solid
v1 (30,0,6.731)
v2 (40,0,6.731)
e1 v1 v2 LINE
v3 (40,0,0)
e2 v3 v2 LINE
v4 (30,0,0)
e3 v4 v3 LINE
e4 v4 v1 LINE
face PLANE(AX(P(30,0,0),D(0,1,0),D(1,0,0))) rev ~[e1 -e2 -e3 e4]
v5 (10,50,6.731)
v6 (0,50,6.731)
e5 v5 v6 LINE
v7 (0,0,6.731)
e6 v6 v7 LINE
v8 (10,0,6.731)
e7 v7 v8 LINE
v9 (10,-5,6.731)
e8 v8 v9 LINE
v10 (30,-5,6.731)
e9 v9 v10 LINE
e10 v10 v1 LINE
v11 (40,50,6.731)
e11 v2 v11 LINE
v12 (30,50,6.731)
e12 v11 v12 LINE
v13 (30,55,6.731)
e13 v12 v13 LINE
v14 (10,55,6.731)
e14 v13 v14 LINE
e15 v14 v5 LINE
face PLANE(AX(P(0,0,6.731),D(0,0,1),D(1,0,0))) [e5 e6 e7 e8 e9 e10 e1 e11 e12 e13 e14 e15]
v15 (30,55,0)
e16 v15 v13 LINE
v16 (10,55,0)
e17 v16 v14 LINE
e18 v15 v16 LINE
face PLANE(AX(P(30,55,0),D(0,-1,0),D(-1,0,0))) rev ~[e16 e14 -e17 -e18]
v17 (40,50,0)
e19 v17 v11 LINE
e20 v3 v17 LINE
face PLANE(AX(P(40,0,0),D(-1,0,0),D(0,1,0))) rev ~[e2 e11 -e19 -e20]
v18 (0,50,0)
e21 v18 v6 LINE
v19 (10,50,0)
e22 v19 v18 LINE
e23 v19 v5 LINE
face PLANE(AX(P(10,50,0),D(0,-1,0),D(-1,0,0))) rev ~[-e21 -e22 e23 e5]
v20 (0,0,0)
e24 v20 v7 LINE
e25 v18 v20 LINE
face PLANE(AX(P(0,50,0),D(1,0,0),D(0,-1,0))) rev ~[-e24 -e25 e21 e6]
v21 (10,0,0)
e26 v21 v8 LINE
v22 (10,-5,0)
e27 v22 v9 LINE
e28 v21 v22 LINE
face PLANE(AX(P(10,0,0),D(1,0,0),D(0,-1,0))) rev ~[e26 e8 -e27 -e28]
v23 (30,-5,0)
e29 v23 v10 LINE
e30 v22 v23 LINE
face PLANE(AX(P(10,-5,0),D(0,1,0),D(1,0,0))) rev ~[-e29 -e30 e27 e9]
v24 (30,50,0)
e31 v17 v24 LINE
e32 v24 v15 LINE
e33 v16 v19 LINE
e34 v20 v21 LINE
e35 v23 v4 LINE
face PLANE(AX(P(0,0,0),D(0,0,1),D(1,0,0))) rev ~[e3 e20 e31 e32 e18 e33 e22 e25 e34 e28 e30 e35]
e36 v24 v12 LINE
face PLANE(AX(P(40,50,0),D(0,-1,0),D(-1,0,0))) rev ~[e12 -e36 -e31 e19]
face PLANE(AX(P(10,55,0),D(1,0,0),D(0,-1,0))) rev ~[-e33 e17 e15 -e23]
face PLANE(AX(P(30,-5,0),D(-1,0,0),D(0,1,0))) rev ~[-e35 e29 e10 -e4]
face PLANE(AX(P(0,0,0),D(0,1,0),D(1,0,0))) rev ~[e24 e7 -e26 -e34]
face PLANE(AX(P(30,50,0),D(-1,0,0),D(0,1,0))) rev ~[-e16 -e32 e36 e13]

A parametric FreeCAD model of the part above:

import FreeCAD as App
import Part
import Sketcher

V = App.Vector

doc = App.newDocument("Part")
body = doc.addObject("PartDesign::Body", "Body")

sketch1 = body.newObject("Sketcher::SketchObject", "Sketch")
sketch1.AttachmentSupport = (doc.getObject("XY_Plane"), [""])
sketch1.MapMode = "FlatFace"
sketch1.addGeometry(Part.LineSegment(V(0, 50, 0), V(0, 0, 0)), False)
sketch1.addGeometry(Part.LineSegment(V(0, 0, 0), V(10, 0, 0)), False)
sketch1.addGeometry(Part.LineSegment(V(10, 0, 0), V(10, -5, 0)), False)
sketch1.addGeometry(Part.LineSegment(V(10, -5, 0), V(30, -5, 0)), False)
sketch1.addGeometry(Part.LineSegment(V(30, -5, 0), V(30, 0, 0)), False)
sketch1.addGeometry(Part.LineSegment(V(30, 0, 0), V(40, 0, 0)), False)
sketch1.addGeometry(Part.LineSegment(V(40, 0, 0), V(40, 50, 0)), False)
sketch1.addGeometry(Part.LineSegment(V(40, 50, 0), V(30, 50, 0)), False)
sketch1.addGeometry(Part.LineSegment(V(30, 50, 0), V(30, 55, 0)), False)
sketch1.addGeometry(Part.LineSegment(V(30, 55, 0), V(10, 55, 0)), False)
sketch1.addGeometry(Part.LineSegment(V(10, 55, 0), V(10, 50, 0)), False)
sketch1.addGeometry(Part.LineSegment(V(10, 50, 0), V(0, 50, 0)), False)
sketch1.addConstraint(Sketcher.Constraint("Coincident", 0, 2, 1, 1))
sketch1.addConstraint(Sketcher.Constraint("Coincident", 1, 2, 2, 1))
sketch1.addConstraint(Sketcher.Constraint("Coincident", 2, 2, 3, 1))
sketch1.addConstraint(Sketcher.Constraint("Coincident", 3, 2, 4, 1))
sketch1.addConstraint(Sketcher.Constraint("Coincident", 4, 2, 5, 1))
sketch1.addConstraint(Sketcher.Constraint("Coincident", 5, 2, 6, 1))
sketch1.addConstraint(Sketcher.Constraint("Coincident", 6, 2, 7, 1))
sketch1.addConstraint(Sketcher.Constraint("Coincident", 7, 2, 8, 1))
sketch1.addConstraint(Sketcher.Constraint("Coincident", 8, 2, 9, 1))
sketch1.addConstraint(Sketcher.Constraint("Coincident", 9, 2, 10, 1))
sketch1.addConstraint(Sketcher.Constraint("Coincident", 10, 2, 11, 1))
sketch1.addConstraint(Sketcher.Constraint("Coincident", 11, 2, 0, 1))
sketch1.addConstraint(Sketcher.Constraint("Vertical", 0))
sketch1.addConstraint(Sketcher.Constraint("Horizontal", 1))
sketch1.addConstraint(Sketcher.Constraint("Vertical", 2))
sketch1.addConstraint(Sketcher.Constraint("Horizontal", 3))
sketch1.addConstraint(Sketcher.Constraint("Vertical", 4))
sketch1.addConstraint(Sketcher.Constraint("Horizontal", 5))
sketch1.addConstraint(Sketcher.Constraint("Vertical", 6))
sketch1.addConstraint(Sketcher.Constraint("Horizontal", 7))
sketch1.addConstraint(Sketcher.Constraint("Vertical", 8))
sketch1.addConstraint(Sketcher.Constraint("Horizontal", 9))
sketch1.addConstraint(Sketcher.Constraint("Vertical", 10))
sketch1.addConstraint(Sketcher.Constraint("Horizontal", 11))
sketch1.addConstraint(Sketcher.Constraint("Coincident", 0, 2, -1, 1))
sketch1.addConstraint(Sketcher.Constraint("PointOnObject", 4, 2, -1))
sketch1.addConstraint(Sketcher.Constraint("Horizontal", 7, 2, 10, 2))
sketch1.addConstraint(Sketcher.Constraint("Vertical", 4, 2, 7, 2))
sketch1.addConstraint(Sketcher.Constraint("Vertical", 2, 2, 9, 2))
sketch1.addConstraint(Sketcher.Constraint("Equal", 1, 5))
sketch1.addConstraint(Sketcher.Constraint("Equal", 4, 8))
sketch1.addConstraint(Sketcher.Constraint("DistanceX", 1, 1, 1, 2, 10.0))
sketch1.addConstraint(Sketcher.Constraint("DistanceX", 3, 1, 3, 2, 20.0))
sketch1.addConstraint(Sketcher.Constraint("DistanceY", 0, 2, 0, 1, 50.0))
sketch1.addConstraint(Sketcher.Constraint("DistanceY", 2, 2, 2, 1, 5.0))
pad1 = body.newObject("PartDesign::Pad", "Pad")
pad1.Profile = sketch1
pad1.Length = 6.731

doc.recompute()
